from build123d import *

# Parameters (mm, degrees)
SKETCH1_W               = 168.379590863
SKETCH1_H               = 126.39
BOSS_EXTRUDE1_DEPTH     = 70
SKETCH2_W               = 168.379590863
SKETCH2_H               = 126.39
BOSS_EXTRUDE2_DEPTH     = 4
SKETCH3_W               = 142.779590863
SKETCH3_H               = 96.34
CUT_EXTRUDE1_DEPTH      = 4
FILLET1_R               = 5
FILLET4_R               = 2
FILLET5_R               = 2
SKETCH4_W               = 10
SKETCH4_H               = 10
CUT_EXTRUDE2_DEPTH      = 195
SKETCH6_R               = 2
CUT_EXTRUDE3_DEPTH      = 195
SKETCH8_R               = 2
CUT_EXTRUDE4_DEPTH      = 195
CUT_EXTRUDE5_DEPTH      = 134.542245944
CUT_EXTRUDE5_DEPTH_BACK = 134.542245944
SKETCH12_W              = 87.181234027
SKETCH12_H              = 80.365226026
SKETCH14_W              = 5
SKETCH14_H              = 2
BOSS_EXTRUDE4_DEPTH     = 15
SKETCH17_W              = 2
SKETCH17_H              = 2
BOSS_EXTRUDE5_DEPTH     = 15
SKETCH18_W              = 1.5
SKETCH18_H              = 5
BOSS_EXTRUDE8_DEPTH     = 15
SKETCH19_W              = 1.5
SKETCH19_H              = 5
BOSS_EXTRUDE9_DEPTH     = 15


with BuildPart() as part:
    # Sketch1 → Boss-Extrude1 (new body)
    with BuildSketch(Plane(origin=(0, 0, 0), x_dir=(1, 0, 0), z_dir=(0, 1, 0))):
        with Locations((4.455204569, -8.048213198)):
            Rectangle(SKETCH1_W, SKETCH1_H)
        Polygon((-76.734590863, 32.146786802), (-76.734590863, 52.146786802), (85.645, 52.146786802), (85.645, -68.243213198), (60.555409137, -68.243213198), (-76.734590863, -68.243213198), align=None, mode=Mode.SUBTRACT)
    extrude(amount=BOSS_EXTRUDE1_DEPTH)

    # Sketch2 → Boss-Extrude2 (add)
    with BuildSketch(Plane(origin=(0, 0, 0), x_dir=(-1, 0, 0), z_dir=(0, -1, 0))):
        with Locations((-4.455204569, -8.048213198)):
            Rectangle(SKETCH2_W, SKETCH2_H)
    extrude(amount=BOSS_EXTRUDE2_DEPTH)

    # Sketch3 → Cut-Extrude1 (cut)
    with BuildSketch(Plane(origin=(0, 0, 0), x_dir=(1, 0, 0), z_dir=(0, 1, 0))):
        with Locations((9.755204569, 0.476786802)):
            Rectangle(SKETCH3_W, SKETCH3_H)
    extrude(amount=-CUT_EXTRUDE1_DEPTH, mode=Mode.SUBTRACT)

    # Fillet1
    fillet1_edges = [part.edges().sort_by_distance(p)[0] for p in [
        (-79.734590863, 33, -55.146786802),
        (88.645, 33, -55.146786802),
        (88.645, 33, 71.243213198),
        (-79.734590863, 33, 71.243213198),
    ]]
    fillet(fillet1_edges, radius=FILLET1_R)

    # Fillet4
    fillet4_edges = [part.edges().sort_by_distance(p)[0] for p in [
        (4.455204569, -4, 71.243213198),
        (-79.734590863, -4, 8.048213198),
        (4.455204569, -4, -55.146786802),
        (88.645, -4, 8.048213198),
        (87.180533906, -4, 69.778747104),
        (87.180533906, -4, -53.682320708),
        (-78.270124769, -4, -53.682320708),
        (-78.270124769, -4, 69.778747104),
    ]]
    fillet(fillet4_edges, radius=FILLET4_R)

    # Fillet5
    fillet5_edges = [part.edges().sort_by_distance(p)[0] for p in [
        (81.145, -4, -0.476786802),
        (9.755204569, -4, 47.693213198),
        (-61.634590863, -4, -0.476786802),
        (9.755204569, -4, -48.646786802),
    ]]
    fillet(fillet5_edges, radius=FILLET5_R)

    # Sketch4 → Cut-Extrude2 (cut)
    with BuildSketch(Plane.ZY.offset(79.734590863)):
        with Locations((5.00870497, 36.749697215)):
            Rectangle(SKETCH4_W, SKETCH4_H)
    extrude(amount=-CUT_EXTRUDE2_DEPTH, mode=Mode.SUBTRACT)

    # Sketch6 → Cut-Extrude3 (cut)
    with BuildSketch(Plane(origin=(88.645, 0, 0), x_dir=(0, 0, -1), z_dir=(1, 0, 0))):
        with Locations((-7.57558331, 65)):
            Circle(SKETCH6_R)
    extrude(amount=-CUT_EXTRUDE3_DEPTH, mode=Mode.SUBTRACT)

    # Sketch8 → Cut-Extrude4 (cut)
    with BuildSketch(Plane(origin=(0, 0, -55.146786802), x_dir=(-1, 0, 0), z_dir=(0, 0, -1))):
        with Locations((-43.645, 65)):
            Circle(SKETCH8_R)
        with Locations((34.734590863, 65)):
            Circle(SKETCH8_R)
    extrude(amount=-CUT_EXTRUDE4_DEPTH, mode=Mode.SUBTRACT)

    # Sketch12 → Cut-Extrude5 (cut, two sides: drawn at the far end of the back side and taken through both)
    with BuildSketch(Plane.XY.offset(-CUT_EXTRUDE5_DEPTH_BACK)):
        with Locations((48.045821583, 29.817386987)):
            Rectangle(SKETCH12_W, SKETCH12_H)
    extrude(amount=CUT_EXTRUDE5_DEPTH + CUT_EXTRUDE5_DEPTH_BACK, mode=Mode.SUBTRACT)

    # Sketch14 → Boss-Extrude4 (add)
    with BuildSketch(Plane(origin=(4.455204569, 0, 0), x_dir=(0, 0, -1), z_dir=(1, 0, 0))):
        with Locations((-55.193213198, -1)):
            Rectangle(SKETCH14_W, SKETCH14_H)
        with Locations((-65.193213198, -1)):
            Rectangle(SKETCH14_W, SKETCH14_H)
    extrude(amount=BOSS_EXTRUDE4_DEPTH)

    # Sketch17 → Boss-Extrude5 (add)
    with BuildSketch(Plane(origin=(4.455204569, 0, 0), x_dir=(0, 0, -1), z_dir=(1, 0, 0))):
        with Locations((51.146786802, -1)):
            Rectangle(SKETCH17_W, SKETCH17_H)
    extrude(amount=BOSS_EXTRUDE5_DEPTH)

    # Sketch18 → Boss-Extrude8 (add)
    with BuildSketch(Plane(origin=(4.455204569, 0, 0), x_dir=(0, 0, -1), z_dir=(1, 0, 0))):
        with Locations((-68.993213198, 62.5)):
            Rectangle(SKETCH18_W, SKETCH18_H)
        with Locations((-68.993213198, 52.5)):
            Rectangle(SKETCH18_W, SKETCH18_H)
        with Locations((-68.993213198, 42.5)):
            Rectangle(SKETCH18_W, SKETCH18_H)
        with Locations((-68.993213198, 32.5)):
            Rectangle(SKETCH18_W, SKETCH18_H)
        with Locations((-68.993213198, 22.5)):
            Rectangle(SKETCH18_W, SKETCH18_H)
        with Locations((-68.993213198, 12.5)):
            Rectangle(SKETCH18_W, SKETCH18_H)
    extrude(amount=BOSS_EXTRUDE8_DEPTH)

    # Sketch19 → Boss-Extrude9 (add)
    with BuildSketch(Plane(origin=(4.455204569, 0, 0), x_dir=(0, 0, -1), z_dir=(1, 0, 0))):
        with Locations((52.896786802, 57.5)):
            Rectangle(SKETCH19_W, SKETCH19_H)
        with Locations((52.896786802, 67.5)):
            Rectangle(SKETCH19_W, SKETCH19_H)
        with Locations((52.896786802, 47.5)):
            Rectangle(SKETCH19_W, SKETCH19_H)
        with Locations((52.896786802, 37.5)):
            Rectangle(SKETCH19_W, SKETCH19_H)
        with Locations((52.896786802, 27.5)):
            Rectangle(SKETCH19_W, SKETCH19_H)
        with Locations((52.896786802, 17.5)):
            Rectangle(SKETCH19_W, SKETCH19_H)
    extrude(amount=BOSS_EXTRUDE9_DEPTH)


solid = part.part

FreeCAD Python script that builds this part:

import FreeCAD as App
import Part
import Sketcher
from FreeCAD import Vector


def edges_at(feature, points):
    """Names of the edges that pass closest to the given points."""
    edges = feature.Shape.Edges
    near = lambda p: min(range(len(edges)), key=lambda i: edges[i].distToShape(Part.Vertex(*p))[0])
    return sorted({f"Edge{near(p) + 1}" for p in points})


def add_polygon(sketch, points):
    """Adds a closed chain of lines whose ends are joined by coincident constraints."""
    first, n = sketch.GeometryCount, len(points)
    for a, b in zip(points, points[1:] + points[:1]):
        sketch.addGeometry(Part.LineSegment(App.Vector(*a, 0), App.Vector(*b, 0)), False)
    for i in range(n):
        sketch.addConstraint(Sketcher.Constraint("Coincident", first + i, 2, first + (i + 1) % n, 1))

doc = App.newDocument("Part")
body = doc.addObject("PartDesign::Body", "Body")

sketch1 = doc.addObject("Sketcher::SketchObject", "Sketch")
body.addObject(sketch1)
sketch1.AttachmentSupport = (doc.XZ_Plane, [""])
sketch1.MapMode = "FlatFace"
add_polygon(sketch1, [(-80, -55), (-80, 71), (89, 71), (89, -55)])
add_polygon(sketch1, [(-77, 68), (-77, -52), (86, -52), (86, 68)])
sketch1.addConstraint(Sketcher.Constraint("Vertical", 0))
sketch1.addConstraint(Sketcher.Constraint("Horizontal", 1))
sketch1.addConstraint(Sketcher.Constraint("Vertical", 2))
sketch1.addConstraint(Sketcher.Constraint("Horizontal", 3))
sketch1.addConstraint(Sketcher.Constraint("Vertical", 4))
sketch1.addConstraint(Sketcher.Constraint("Horizontal", 5))
sketch1.addConstraint(Sketcher.Constraint("Vertical", 6))
sketch1.addConstraint(Sketcher.Constraint("Horizontal", 7))
sketch1.addConstraint(Sketcher.Constraint("DistanceX", 3, 2, 4, 2, 3.0))
sketch1.addConstraint(Sketcher.Constraint("DistanceY", 3, 2, 4, 2, 3.0))
sketch1.addConstraint(Sketcher.Constraint("DistanceX", 5, 2, 2, 2, 3.0))
sketch1.addConstraint(Sketcher.Constraint("DistanceY", 6, 2, 1, 2, 3.0))
sketch1.addConstraint(Sketcher.Constraint("DistanceY", 0, 1, 0, 2, 126.39))
sketch1.addConstraint(Sketcher.Constraint("DistanceX", -1, 1, 1, 2, 88.645))
sketch1.addConstraint(Sketcher.Constraint("DistanceX", 1, 1, 1, 2, 168.379591))
sketch1.addConstraint(Sketcher.Constraint("DistanceY", -1, 1, 0, 2, 71.243213))
pad1 = doc.addObject("PartDesign::Pad", "Pad")
body.addObject(pad1)
pad1.Profile = sketch1
pad1.Length = 70
pad1.Reversed = True

sketch2 = doc.addObject("Sketcher::SketchObject", "Sketch001")
body.addObject(sketch2)
sketch2.AttachmentSupport = (doc.XZ_Plane, [""])
sketch2.MapMode = "FlatFace"
add_polygon(sketch2, [(89, -55), (89, 71), (-80, 71), (-80, -55)])
sketch2.addConstraint(Sketcher.Constraint("Vertical", 0))
sketch2.addConstraint(Sketcher.Constraint("Horizontal", 1))
sketch2.addConstraint(Sketcher.Constraint("Vertical", 2))
sketch2.addConstraint(Sketcher.Constraint("Horizontal", 3))
sketch2.addConstraint(Sketcher.Constraint("DistanceY", 0, 1, 0, 2, 126.39))
sketch2.addConstraint(Sketcher.Constraint("DistanceX", -1, 1, 0, 2, 88.645))
sketch2.addConstraint(Sketcher.Constraint("DistanceX", 1, 2, 1, 1, 168.379591))
sketch2.addConstraint(Sketcher.Constraint("DistanceY", -1, 1, 0, 2, 71.243213))
pad2 = doc.addObject("PartDesign::Pad", "Pad001")
body.addObject(pad2)
pad2.Profile = sketch2
pad2.Length = 4

sketch3 = doc.addObject("Sketcher::SketchObject", "Sketch002")
body.addObject(sketch3)
sketch3.AttachmentSupport = (doc.XZ_Plane, [""])
sketch3.MapMode = "FlatFace"
add_polygon(sketch3, [(-62, -49), (-62, 48), (81, 48), (81, -49)])
sketch3.addConstraint(Sketcher.Constraint("Vertical", 0))
sketch3.addConstraint(Sketcher.Constraint("Horizontal", 1))
sketch3.addConstraint(Sketcher.Constraint("Vertical", 2))
sketch3.addConstraint(Sketcher.Constraint("Horizontal", 3))
sketch3.addConstraint(Sketcher.Constraint("DistanceY", 0, 1, 0, 2, 96.34))
sketch3.addConstraint(Sketcher.Constraint("DistanceX", -1, 1, 1, 2, 81.145))
sketch3.addConstraint(Sketcher.Constraint("DistanceX", 1, 1, 1, 2, 142.779591))
sketch3.addConstraint(Sketcher.Constraint("DistanceY", -1, 1, 0, 2, 47.693213))
pocket1 = doc.addObject("PartDesign::Pocket", "Pocket")
body.addObject(pocket1)
pocket1.Profile = sketch3
pocket1.Length = 4
pocket1.Reversed = True
doc.recompute()

fillet = doc.addObject("PartDesign::Fillet", "Fillet")
body.addObject(fillet)
fillet.Base = (pocket1, edges_at(pocket1, [
    (-79.735, 33, -55.147),
    (88.645, 33, -55.147),
    (88.645, 33, 71.243),
    (-79.735, 33, 71.243),
]))
fillet.Radius = 5
doc.recompute()

fillet2 = doc.addObject("PartDesign::Fillet", "Fillet001")
body.addObject(fillet2)
fillet2.Base = (fillet, edges_at(fillet, [
    (4.455, -4, 71.243),
    (-79.735, -4, 8.048),
    (4.455, -4, -55.147),
    (88.645, -4, 8.048),
    (87.181, -4, 69.779),
    (87.181, -4, -53.682),
    (-78.27, -4, -53.682),
    (-78.27, -4, 69.779),
]))
fillet2.Radius = 2
doc.recompute()

fillet3 = doc.addObject("PartDesign::Fillet", "Fillet002")
body.addObject(fillet3)
fillet3.Base = (fillet2, edges_at(fillet2, [
    (81.145, -4, -0.477),
    (9.755, -4, 47.693),
    (-61.635, -4, -0.477),
    (9.755, -4, -48.647),
]))
fillet3.Radius = 2

sketch4 = doc.addObject("Sketcher::SketchObject", "Sketch003")
body.addObject(sketch4)
sketch4.AttachmentSupport = (doc.YZ_Plane, [""])
sketch4.MapMode = "FlatFace"
sketch4.AttachmentOffset = App.Placement(Vector(0, 0, -79.734591), App.Rotation())
add_polygon(sketch4, [(42, 0), (32, 0), (32, 10), (42, 10)])
sketch4.addConstraint(Sketcher.Constraint("Horizontal", 0))
sketch4.addConstraint(Sketcher.Constraint("Vertical", 1))
sketch4.addConstraint(Sketcher.Constraint("Horizontal", 2))
sketch4.addConstraint(Sketcher.Constraint("Vertical", 3))
sketch4.addConstraint(Sketcher.Constraint("Equal", 2, 1))
sketch4.addConstraint(Sketcher.Constraint("DistanceX", 0, 2, 0, 1, 10.0))
sketch4.addConstraint(Sketcher.Constraint("DistanceX", -1, 1, 0, 2, 31.749697))
sketch4.addConstraint(Sketcher.Constraint("DistanceY", -1, 1, 0, 2, 0.008705))
pocket2 = doc.addObject("PartDesign::Pocket", "Pocket001")
body.addObject(pocket2)
pocket2.Profile = sketch4
pocket2.Length = 195
pocket2.Reversed = True

sketch5 = doc.addObject("Sketcher::SketchObject", "Sketch004")
body.addObject(sketch5)
sketch5.AttachmentSupport = (doc.YZ_Plane, [""])
sketch5.MapMode = "FlatFace"
sketch5.AttachmentOffset = App.Placement(Vector(0, 0, 88.645), App.Rotation())
sketch5.addGeometry(Part.Circle(Vector(65, 7.6, 0), Vector(0, 0, 1), 2), False)
sketch5.addConstraint(Sketcher.Constraint("Diameter", 0, 4.0))
sketch5.addConstraint(Sketcher.Constraint("DistanceX", -1, 1, 0, 3, 65.0))
sketch5.addConstraint(Sketcher.Constraint("DistanceY", -1, 1, 0, 3, 7.575583))
pocket3 = doc.addObject("PartDesign::Pocket", "Pocket002")
body.addObject(pocket3)
pocket3.Profile = sketch5
pocket3.Length = 195

sketch6 = doc.addObject("Sketcher::SketchObject", "Sketch005")
body.addObject(sketch6)
sketch6.AttachmentSupport = (doc.XY_Plane, [""])
sketch6.MapMode = "FlatFace"
sketch6.AttachmentOffset = App.Placement(Vector(0, 0, -55.146787), App.Rotation())
sketch6.addGeometry(Part.Circle(Vector(43.6, 65, 0), Vector(0, 0, 1), 2), False)
sketch6.addGeometry(Part.Circle(Vector(-34.7, 65, 0), Vector(0, 0, 1), 2), False)
sketch6.addConstraint(Sketcher.Constraint("Equal", 0, 1))
sketch6.addConstraint(Sketcher.Constraint("Horizontal", 0, 3, 1, 3))
sketch6.addConstraint(Sketcher.Constraint("Diameter", 0, 4.0))
sketch6.addConstraint(Sketcher.Constraint("DistanceY", -1, 1, 0, 3, 65.0))
sketch6.addConstraint(Sketcher.Constraint("DistanceX", -1, 1, 0, 3, 43.645))
sketch6.addConstraint(Sketcher.Constraint("DistanceX", 1, 3, -1, 1, 34.734591))
pocket4 = doc.addObject("PartDesign::Pocket", "Pocket003")
body.addObject(pocket4)
pocket4.Profile = sketch6
pocket4.Length = 195
pocket4.Reversed = True

sketch7 = doc.addObject("Sketcher::SketchObject", "Sketch006")
body.addObject(sketch7)
sketch7.AttachmentSupport = (doc.XY_Plane, [""])
sketch7.MapMode = "FlatFace"
add_polygon(sketch7, [(4, 70), (4, -10), (92, -10), (92, 70)])
sketch7.addConstraint(Sketcher.Constraint("Vertical", 0))
sketch7.addConstraint(Sketcher.Constraint("Horizontal", 1))
sketch7.addConstraint(Sketcher.Constraint("Vertical", 2))
sketch7.addConstraint(Sketcher.Constraint("Horizontal", 3))
sketch7.addConstraint(Sketcher.Constraint("DistanceY", -1, 1, 2, 2, 70.0))
sketch7.addConstraint(Sketcher.Constraint("DistanceX", 1, 1, 1, 2, 87.181234))
sketch7.addConstraint(Sketcher.Constraint("DistanceY", 0, 2, 0, 1, 80.365226))
sketch7.addConstraint(Sketcher.Constraint("DistanceX", -1, 1, 1, 2, 91.636439))
pocket5 = doc.addObject("PartDesign::Pocket", "Pocket004")
body.addObject(pocket5)
pocket5.Profile = sketch7
pocket5.Type = "ThroughAll"
pocket5.Midplane = True

sketch8 = doc.addObject("Sketcher::SketchObject", "Sketch007")
body.addObject(sketch8)
sketch8.AttachmentSupport = (doc.YZ_Plane, [""])
sketch8.MapMode = "FlatFace"
sketch8.AttachmentOffset = App.Placement(Vector(0, 0, 4.455205), App.Rotation())
add_polygon(sketch8, [(0, 57.7), (-2, 57.7), (-2, 52.7), (0, 52.7)])
add_polygon(sketch8, [(0, 67.7), (-2, 67.7), (-2, 62.7), (0, 62.7)])
sketch8.addConstraint(Sketcher.Constraint("Horizontal", 0))
sketch8.addConstraint(Sketcher.Constraint("Vertical", 1))
sketch8.addConstraint(Sketcher.Constraint("Horizontal", 2))
sketch8.addConstraint(Sketcher.Constraint("Vertical", 3))
sketch8.addConstraint(Sketcher.Constraint("Horizontal", 4))
sketch8.addConstraint(Sketcher.Constraint("Vertical", 5))
sketch8.addConstraint(Sketcher.Constraint("Horizontal", 6))
sketch8.addConstraint(Sketcher.Constraint("Vertical", 7))
sketch8.addConstraint(Sketcher.Constraint("PointOnObject", 2, 2, -2))
sketch8.addConstraint(Sketcher.Constraint("PointOnObject", 6, 2, -2))
sketch8.addConstraint(Sketcher.Constraint("Vertical", 1, 2, 4, 2))
sketch8.addConstraint(Sketcher.Constraint("Equal", 3, 5))
sketch8.addConstraint(Sketcher.Constraint("DistanceX", 0, 2, 0, 1, 2.0))
sketch8.addConstraint(Sketcher.Constraint("DistanceY", 1, 2, 1, 1, 5.0))
sketch8.addConstraint(Sketcher.Constraint("DistanceY", 0, 2, 4, 2, 10.0))
sketch8.addConstraint(Sketcher.Constraint("DistanceY", -1, 1, 0, 2, 57.693213))
pad3 = doc.addObject("PartDesign::Pad", "Pad002")
body.addObject(pad3)
pad3.Profile = sketch8
pad3.Length = 15

sketch9 = doc.addObject("Sketcher::SketchObject", "Sketch008")
body.addObject(sketch9)
sketch9.AttachmentSupport = (doc.YZ_Plane, [""])
sketch9.MapMode = "FlatFace"
sketch9.AttachmentOffset = App.Placement(Vector(0, 0, 4.455205), App.Rotation())
add_polygon(sketch9, [(0, -50.1), (-2, -50.1), (-2, -52.1), (0, -52.1)])
sketch9.addConstraint(Sketcher.Constraint("Horizontal", 0))
sketch9.addConstraint(Sketcher.Constraint("Vertical", 1))
sketch9.addConstraint(Sketcher.Constraint("Horizontal", 2))
sketch9.addConstraint(Sketcher.Constraint("Vertical", 3))
sketch9.addConstraint(Sketcher.Constraint("PointOnObject", 2, 2, -2))
sketch9.addConstraint(Sketcher.Constraint("Equal", 2, 1))
sketch9.addConstraint(Sketcher.Constraint("DistanceX", 0, 2, 0, 1, 2.0))
sketch9.addConstraint(Sketcher.Constraint("DistanceY", 0, 2, -1, 1, 50.146787))
pad4 = doc.addObject("PartDesign::Pad", "Pad003")
body.addObject(pad4)
pad4.Profile = sketch9
pad4.Length = 15

sketch10 = doc.addObject("Sketcher::SketchObject", "Sketch009")
body.addObject(sketch10)
sketch10.AttachmentSupport = (doc.YZ_Plane, [""])
sketch10.MapMode = "FlatFace"
sketch10.AttachmentOffset = App.Placement(Vector(0, 0, 4.455205), App.Rotation())
add_polygon(sketch10, [(65, 69.7), (60, 69.7), (60, 68.2), (65, 68.2)])
add_polygon(sketch10, [(55, 69.7), (50, 69.7), (50, 68.2), (55, 68.2)])
add_polygon(sketch10, [(45, 69.7), (40, 69.7), (40, 68.2), (45, 68.2)])
add_polygon(sketch10, [(35, 69.7), (30, 69.7), (30, 68.2), (35, 68.2)])
add_polygon(sketch10, [(25, 69.7), (20, 69.7), (20, 68.2), (25, 68.2)])
add_polygon(sketch10, [(15, 69.7), (10, 69.7), (10, 68.2), (15, 68.2)])
sketch10.addConstraint(Sketcher.Constraint("Horizontal", 0))
sketch10.addConstraint(Sketcher.Constraint("Vertical", 1))
sketch10.addConstraint(Sketcher.Constraint("Horizontal", 2))
sketch10.addConstraint(Sketcher.Constraint("Vertical", 3))
sketch10.addConstraint(Sketcher.Constraint("Horizontal", 4))
sketch10.addConstraint(Sketcher.Constraint("Vertical", 5))
sketch10.addConstraint(Sketcher.Constraint("Horizontal", 6))
sketch10.addConstraint(Sketcher.Constraint("Vertical", 7))
sketch10.addConstraint(Sketcher.Constraint("Horizontal", 8))
sketch10.addConstraint(Sketcher.Constraint("Vertical", 9))
sketch10.addConstraint(Sketcher.Constraint("Horizontal", 10))
sketch10.addConstraint(Sketcher.Constraint("Vertical", 11))
sketch10.addConstraint(Sketcher.Constraint("Horizontal", 12))
sketch10.addConstraint(Sketcher.Constraint("Vertical", 13))
sketch10.addConstraint(Sketcher.Constraint("Horizontal", 14))
sketch10.addConstraint(Sketcher.Constraint("Vertical", 15))
sketch10.addConstraint(Sketcher.Constraint("Horizontal", 16))
sketch10.addConstraint(Sketcher.Constraint("Vertical", 17))
sketch10.addConstraint(Sketcher.Constraint("Horizontal", 18))
sketch10.addConstraint(Sketcher.Constraint("Vertical", 19))
sketch10.addConstraint(Sketcher.Constraint("Horizontal", 20))
sketch10.addConstraint(Sketcher.Constraint("Vertical", 21))
sketch10.addConstraint(Sketcher.Constraint("Horizontal", 22))
sketch10.addConstraint(Sketcher.Constraint("Vertical", 23))
sketch10.addConstraint(Sketcher.Constraint("Horizontal", 3, 2, 4, 2))
sketch10.addConstraint(Sketcher.Constraint("Horizontal", 2, 2, 5, 2))
sketch10.addConstraint(Sketcher.Constraint("Horizontal", 7, 2, 8, 2))
sketch10.addConstraint(Sketcher.Constraint("Horizontal", 6, 2, 9, 2))
sketch10.addConstraint(Sketcher.Constraint("Horizontal", 11, 2, 12, 2))
sketch10.addConstraint(Sketcher.Constraint("Horizontal", 10, 2, 13, 2))
sketch10.addConstraint(Sketcher.Constraint("Horizontal", 15, 2, 16, 2))
sketch10.addConstraint(Sketcher.Constraint("Horizontal", 14, 2, 17, 2))
sketch10.addConstraint(Sketcher.Constraint("Horizontal", 19, 2, 20, 2))
sketch10.addConstraint(Sketcher.Constraint("Horizontal", 18, 2, 21, 2))
sketch10.addConstraint(Sketcher.Constraint("Equal", 2, 4))
sketch10.addConstraint(Sketcher.Constraint("Equal", 6, 8))
sketch10.addConstraint(Sketcher.Constraint("Equal", 10, 12))
sketch10.addConstraint(Sketcher.Constraint("Equal", 14, 16))
sketch10.addConstraint(Sketcher.Constraint("Equal", 18, 20))
sketch10.addConstraint(Sketcher.Constraint("DistanceX", 0, 2, 0, 1, 5.0))
sketch10.addConstraint(Sketcher.Constraint("DistanceY", 1, 2, 1, 1, 1.5))
sketch10.addConstraint(Sketcher.Constraint("DistanceX", -1, 1, 0, 2, 60.0))
sketch10.addConstraint(Sketcher.Constraint("DistanceX", -1, 1, 4, 2, 50.0))
sketch10.addConstraint(Sketcher.Constraint("DistanceX", -1, 1, 8, 2, 40.0))
sketch10.addConstraint(Sketcher.Constraint("DistanceX", -1, 1, 12, 2, 30.0))
sketch10.addConstraint(Sketcher.Constraint("DistanceX", -1, 1, 16, 2, 20.0))
sketch10.addConstraint(Sketcher.Constraint("DistanceX", -1, 1, 20, 2, 10.0))
sketch10.addConstraint(Sketcher.Constraint("DistanceY", -1, 1, 0, 2, 69.743213))
pad5 = doc.addObject("PartDesign::Pad", "Pad004")
body.addObject(pad5)
pad5.Profile = sketch10
pad5.Length = 15

sketch11 = doc.addObject("Sketcher::SketchObject", "Sketch010")
body.addObject(sketch11)
sketch11.AttachmentSupport = (doc.YZ_Plane, [""])
sketch11.MapMode = "FlatFace"
sketch11.AttachmentOffset = App.Placement(Vector(0, 0, 4.455205), App.Rotation())
add_polygon(sketch11, [(60, -52.1), (55, -52.1), (55, -53.6), (60, -53.6)])
add_polygon(sketch11, [(70, -52.1), (65, -52.1), (65, -53.6), (70, -53.6)])
add_polygon(sketch11, [(50, -52.1), (45, -52.1), (45, -53.6), (50, -53.6)])
add_polygon(sketch11, [(40, -52.1), (35, -52.1), (35, -53.6), (40, -53.6)])
add_polygon(sketch11, [(30, -52.1), (25, -52.1), (25, -53.6), (30, -53.6)])
add_polygon(sketch11, [(20, -52.1), (15, -52.1), (15, -53.6), (20, -53.6)])
sketch11.addConstraint(Sketcher.Constraint("Horizontal", 0))
sketch11.addConstraint(Sketcher.Constraint("Vertical", 1))
sketch11.addConstraint(Sketcher.Constraint("Horizontal", 2))
sketch11.addConstraint(Sketcher.Constraint("Vertical", 3))
sketch11.addConstraint(Sketcher.Constraint("Horizontal", 4))
sketch11.addConstraint(Sketcher.Constraint("Vertical", 5))
sketch11.addConstraint(Sketcher.Constraint("Horizontal", 6))
sketch11.addConstraint(Sketcher.Constraint("Vertical", 7))
sketch11.addConstraint(Sketcher.Constraint("Horizontal", 8))
sketch11.addConstraint(Sketcher.Constraint("Vertical", 9))
sketch11.addConstraint(Sketcher.Constraint("Horizontal", 10))
sketch11.addConstraint(Sketcher.Constraint("Vertical", 11))
sketch11.addConstraint(Sketcher.Constraint("Horizontal", 12))
sketch11.addConstraint(Sketcher.Constraint("Vertical", 13))
sketch11.addConstraint(Sketcher.Constraint("Horizontal", 14))
sketch11.addConstraint(Sketcher.Constraint("Vertical", 15))
sketch11.addConstraint(Sketcher.Constraint("Horizontal", 16))
sketch11.addConstraint(Sketcher.Constraint("Vertical", 17))
sketch11.addConstraint(Sketcher.Constraint("Horizontal", 18))
sketch11.addConstraint(Sketcher.Constraint("Vertical", 19))
sketch11.addConstraint(Sketcher.Constraint("Horizontal", 20))
sketch11.addConstraint(Sketcher.Constraint("Vertical", 21))
sketch11.addConstraint(Sketcher.Constraint("Horizontal", 22))
sketch11.addConstraint(Sketcher.Constraint("Vertical", 23))
sketch11.addConstraint(Sketcher.Constraint("Horizontal", 3, 2, 4, 2))
sketch11.addConstraint(Sketcher.Constraint("Horizontal", 2, 2, 5, 2))
sketch11.addConstraint(Sketcher.Constraint("Horizontal", 7, 2, 8, 2))
sketch11.addConstraint(Sketcher.Constraint("Horizontal", 6, 2, 9, 2))
sketch11.addConstraint(Sketcher.Constraint("Horizontal", 11, 2, 12, 2))
sketch11.addConstraint(Sketcher.Constraint("Horizontal", 10, 2, 13, 2))
sketch11.addConstraint(Sketcher.Constraint("Horizontal", 15, 2, 16, 2))
sketch11.addConstraint(Sketcher.Constraint("Horizontal", 14, 2, 17, 2))
sketch11.addConstraint(Sketcher.Constraint("Horizontal", 19, 2, 20, 2))
sketch11.addConstraint(Sketcher.Constraint("Horizontal", 18, 2, 21, 2))
sketch11.addConstraint(Sketcher.Constraint("Equal", 2, 4))
sketch11.addConstraint(Sketcher.Constraint("Equal", 6, 8))
sketch11.addConstraint(Sketcher.Constraint("Equal", 10, 12))
sketch11.addConstraint(Sketcher.Constraint("Equal", 14, 16))
sketch11.addConstraint(Sketcher.Constraint("Equal", 18, 20))
sketch11.addConstraint(Sketcher.Constraint("DistanceX", 0, 2, 0, 1, 5.0))
sketch11.addConstraint(Sketcher.Constraint("DistanceY", 1, 2, 1, 1, 1.5))
sketch11.addConstraint(Sketcher.Constraint("DistanceX", -1, 1, 0, 2, 55.0))
sketch11.addConstraint(Sketcher.Constraint("DistanceX", -1, 1, 4, 2, 65.0))
sketch11.addConstraint(Sketcher.Constraint("DistanceX", -1, 1, 8, 2, 45.0))
sketch11.addConstraint(Sketcher.Constraint("DistanceX", -1, 1, 12, 2, 35.0))
sketch11.addConstraint(Sketcher.Constraint("DistanceX", -1, 1, 16, 2, 25.0))
sketch11.addConstraint(Sketcher.Constraint("DistanceX", -1, 1, 20, 2, 15.0))
sketch11.addConstraint(Sketcher.Constraint("DistanceY", 0, 2, -1, 1, 52.146787))
pad6 = doc.addObject("PartDesign::Pad", "Pad005")
body.addObject(pad6)
pad6.Profile = sketch11
pad6.Length = 15

doc.recompute()
